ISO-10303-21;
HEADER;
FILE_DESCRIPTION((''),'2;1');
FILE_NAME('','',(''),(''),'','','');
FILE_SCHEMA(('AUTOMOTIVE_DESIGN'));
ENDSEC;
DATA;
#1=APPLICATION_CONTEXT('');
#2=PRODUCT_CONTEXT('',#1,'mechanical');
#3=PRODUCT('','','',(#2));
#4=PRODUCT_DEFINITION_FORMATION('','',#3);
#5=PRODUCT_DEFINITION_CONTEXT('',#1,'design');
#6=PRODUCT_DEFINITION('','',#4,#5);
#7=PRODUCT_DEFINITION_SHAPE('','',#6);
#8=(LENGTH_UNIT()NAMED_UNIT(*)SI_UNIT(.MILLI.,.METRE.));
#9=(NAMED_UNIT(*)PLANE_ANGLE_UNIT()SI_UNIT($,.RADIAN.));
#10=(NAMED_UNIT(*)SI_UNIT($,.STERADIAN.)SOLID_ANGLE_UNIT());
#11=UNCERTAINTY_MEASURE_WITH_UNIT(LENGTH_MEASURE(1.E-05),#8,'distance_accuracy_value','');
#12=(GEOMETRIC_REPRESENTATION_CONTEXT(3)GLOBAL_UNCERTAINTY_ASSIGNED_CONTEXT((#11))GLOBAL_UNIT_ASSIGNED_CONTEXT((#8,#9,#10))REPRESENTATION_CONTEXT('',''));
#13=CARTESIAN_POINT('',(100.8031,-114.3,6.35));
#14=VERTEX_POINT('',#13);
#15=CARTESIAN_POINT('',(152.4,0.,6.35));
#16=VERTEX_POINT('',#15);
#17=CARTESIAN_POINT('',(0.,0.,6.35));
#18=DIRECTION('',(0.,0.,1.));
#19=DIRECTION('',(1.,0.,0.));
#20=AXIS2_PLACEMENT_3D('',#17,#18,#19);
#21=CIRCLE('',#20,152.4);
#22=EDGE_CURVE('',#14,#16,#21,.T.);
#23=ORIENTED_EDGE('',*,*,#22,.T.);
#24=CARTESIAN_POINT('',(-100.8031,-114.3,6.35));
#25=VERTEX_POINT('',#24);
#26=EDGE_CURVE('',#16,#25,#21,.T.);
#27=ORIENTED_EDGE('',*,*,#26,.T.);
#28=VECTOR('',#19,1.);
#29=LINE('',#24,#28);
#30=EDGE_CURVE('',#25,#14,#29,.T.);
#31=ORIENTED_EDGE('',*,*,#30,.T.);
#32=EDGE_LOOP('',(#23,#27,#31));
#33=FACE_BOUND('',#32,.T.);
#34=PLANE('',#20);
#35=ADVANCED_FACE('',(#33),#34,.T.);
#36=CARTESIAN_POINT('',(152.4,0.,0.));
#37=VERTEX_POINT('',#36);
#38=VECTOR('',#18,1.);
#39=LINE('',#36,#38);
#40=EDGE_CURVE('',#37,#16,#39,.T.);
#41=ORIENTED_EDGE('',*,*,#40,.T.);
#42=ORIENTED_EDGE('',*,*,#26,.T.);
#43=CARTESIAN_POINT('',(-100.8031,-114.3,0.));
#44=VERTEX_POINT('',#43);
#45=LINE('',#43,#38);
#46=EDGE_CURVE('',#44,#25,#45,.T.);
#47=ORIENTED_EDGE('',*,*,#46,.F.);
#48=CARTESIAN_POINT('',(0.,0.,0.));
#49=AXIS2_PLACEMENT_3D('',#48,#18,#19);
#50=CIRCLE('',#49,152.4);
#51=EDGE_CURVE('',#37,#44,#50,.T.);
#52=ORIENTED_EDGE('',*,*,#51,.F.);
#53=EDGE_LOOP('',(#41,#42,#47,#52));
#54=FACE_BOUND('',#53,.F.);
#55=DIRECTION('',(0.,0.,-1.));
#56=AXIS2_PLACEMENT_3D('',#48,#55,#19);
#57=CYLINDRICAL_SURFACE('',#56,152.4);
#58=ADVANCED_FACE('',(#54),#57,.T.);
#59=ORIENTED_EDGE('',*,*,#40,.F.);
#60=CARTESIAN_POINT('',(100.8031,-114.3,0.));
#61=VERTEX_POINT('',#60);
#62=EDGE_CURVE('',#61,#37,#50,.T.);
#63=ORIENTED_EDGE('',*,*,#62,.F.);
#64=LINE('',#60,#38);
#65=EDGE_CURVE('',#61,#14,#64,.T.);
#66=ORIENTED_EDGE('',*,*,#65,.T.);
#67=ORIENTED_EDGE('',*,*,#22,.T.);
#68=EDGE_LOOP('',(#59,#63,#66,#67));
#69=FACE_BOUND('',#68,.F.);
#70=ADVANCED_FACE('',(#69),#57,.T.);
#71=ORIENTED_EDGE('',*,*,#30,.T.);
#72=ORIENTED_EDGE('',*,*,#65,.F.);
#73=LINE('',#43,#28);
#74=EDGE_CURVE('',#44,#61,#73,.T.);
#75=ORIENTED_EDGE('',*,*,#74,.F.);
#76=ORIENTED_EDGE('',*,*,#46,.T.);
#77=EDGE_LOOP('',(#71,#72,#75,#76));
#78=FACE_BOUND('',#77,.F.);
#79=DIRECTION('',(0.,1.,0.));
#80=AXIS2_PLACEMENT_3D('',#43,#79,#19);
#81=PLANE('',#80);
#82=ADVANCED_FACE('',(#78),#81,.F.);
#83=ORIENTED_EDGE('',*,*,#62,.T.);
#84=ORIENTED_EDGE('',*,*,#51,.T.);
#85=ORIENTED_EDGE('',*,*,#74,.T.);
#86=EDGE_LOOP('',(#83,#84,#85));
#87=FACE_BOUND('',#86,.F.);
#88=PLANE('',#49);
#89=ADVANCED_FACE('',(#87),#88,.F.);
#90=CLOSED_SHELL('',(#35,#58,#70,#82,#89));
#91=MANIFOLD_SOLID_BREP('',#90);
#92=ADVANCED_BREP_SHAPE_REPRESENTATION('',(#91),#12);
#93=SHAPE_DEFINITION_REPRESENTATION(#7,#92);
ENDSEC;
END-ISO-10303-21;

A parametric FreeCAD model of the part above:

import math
import FreeCAD as App
import Part
import Sketcher
Q = App.Units.Quantity

doc = App.newDocument("Part")
params = doc.addObject("Spreadsheet::Sheet", "Params")
for row, (alias, value) in enumerate([
    ("sketch1_radius", "6 in"),
    ("pad1_length", "0.25 in"),
], start=1):
    params.set(f"A{row}", alias)
    params.set(f"B{row}", "=" + value)
    params.setAlias(f"B{row}", alias)

body = doc.addObject("PartDesign::Body", "Body")

# Sketch on XY plane
sketch1 = body.newObject("Sketcher::SketchObject", "Sketch")
sketch1.AttachmentSupport = (doc.getObject("XY_Plane"), [""])
sketch1.MapMode = "FlatFace"
sketch1.addGeometry([
    Part.ArcOfCircle(Part.Circle(App.Vector(0, 0, 0), App.Vector(0, 0, 1), 152.4), math.radians(-48.590385), math.radians(228.590385)),
    Part.LineSegment(App.Vector(100.8031, -114.3, 0), App.Vector(-100.8031, -114.3, 0)),
], False)
sketch1.addConstraint([
    Sketcher.Constraint("Coincident", 0, 1, 1, 1),
    Sketcher.Constraint("Coincident", 1, 2, 0, 2),
    Sketcher.Constraint("Horizontal", 1),
    Sketcher.Constraint("Coincident", 0, 3, -1, 1),
    Sketcher.Constraint("Radius", 0, Q("6 in")),
    Sketcher.Constraint("DistanceY", 0, 1, -1, 1, Q("4.5 in")),
])
sketch1.setExpression("Constraints[4]", "Params.sketch1_radius")
pad1 = body.newObject("PartDesign::Pad", "Pad")
pad1.Profile = sketch1
pad1.setExpression("Length", "Params.pad1_length")

doc.recompute()
